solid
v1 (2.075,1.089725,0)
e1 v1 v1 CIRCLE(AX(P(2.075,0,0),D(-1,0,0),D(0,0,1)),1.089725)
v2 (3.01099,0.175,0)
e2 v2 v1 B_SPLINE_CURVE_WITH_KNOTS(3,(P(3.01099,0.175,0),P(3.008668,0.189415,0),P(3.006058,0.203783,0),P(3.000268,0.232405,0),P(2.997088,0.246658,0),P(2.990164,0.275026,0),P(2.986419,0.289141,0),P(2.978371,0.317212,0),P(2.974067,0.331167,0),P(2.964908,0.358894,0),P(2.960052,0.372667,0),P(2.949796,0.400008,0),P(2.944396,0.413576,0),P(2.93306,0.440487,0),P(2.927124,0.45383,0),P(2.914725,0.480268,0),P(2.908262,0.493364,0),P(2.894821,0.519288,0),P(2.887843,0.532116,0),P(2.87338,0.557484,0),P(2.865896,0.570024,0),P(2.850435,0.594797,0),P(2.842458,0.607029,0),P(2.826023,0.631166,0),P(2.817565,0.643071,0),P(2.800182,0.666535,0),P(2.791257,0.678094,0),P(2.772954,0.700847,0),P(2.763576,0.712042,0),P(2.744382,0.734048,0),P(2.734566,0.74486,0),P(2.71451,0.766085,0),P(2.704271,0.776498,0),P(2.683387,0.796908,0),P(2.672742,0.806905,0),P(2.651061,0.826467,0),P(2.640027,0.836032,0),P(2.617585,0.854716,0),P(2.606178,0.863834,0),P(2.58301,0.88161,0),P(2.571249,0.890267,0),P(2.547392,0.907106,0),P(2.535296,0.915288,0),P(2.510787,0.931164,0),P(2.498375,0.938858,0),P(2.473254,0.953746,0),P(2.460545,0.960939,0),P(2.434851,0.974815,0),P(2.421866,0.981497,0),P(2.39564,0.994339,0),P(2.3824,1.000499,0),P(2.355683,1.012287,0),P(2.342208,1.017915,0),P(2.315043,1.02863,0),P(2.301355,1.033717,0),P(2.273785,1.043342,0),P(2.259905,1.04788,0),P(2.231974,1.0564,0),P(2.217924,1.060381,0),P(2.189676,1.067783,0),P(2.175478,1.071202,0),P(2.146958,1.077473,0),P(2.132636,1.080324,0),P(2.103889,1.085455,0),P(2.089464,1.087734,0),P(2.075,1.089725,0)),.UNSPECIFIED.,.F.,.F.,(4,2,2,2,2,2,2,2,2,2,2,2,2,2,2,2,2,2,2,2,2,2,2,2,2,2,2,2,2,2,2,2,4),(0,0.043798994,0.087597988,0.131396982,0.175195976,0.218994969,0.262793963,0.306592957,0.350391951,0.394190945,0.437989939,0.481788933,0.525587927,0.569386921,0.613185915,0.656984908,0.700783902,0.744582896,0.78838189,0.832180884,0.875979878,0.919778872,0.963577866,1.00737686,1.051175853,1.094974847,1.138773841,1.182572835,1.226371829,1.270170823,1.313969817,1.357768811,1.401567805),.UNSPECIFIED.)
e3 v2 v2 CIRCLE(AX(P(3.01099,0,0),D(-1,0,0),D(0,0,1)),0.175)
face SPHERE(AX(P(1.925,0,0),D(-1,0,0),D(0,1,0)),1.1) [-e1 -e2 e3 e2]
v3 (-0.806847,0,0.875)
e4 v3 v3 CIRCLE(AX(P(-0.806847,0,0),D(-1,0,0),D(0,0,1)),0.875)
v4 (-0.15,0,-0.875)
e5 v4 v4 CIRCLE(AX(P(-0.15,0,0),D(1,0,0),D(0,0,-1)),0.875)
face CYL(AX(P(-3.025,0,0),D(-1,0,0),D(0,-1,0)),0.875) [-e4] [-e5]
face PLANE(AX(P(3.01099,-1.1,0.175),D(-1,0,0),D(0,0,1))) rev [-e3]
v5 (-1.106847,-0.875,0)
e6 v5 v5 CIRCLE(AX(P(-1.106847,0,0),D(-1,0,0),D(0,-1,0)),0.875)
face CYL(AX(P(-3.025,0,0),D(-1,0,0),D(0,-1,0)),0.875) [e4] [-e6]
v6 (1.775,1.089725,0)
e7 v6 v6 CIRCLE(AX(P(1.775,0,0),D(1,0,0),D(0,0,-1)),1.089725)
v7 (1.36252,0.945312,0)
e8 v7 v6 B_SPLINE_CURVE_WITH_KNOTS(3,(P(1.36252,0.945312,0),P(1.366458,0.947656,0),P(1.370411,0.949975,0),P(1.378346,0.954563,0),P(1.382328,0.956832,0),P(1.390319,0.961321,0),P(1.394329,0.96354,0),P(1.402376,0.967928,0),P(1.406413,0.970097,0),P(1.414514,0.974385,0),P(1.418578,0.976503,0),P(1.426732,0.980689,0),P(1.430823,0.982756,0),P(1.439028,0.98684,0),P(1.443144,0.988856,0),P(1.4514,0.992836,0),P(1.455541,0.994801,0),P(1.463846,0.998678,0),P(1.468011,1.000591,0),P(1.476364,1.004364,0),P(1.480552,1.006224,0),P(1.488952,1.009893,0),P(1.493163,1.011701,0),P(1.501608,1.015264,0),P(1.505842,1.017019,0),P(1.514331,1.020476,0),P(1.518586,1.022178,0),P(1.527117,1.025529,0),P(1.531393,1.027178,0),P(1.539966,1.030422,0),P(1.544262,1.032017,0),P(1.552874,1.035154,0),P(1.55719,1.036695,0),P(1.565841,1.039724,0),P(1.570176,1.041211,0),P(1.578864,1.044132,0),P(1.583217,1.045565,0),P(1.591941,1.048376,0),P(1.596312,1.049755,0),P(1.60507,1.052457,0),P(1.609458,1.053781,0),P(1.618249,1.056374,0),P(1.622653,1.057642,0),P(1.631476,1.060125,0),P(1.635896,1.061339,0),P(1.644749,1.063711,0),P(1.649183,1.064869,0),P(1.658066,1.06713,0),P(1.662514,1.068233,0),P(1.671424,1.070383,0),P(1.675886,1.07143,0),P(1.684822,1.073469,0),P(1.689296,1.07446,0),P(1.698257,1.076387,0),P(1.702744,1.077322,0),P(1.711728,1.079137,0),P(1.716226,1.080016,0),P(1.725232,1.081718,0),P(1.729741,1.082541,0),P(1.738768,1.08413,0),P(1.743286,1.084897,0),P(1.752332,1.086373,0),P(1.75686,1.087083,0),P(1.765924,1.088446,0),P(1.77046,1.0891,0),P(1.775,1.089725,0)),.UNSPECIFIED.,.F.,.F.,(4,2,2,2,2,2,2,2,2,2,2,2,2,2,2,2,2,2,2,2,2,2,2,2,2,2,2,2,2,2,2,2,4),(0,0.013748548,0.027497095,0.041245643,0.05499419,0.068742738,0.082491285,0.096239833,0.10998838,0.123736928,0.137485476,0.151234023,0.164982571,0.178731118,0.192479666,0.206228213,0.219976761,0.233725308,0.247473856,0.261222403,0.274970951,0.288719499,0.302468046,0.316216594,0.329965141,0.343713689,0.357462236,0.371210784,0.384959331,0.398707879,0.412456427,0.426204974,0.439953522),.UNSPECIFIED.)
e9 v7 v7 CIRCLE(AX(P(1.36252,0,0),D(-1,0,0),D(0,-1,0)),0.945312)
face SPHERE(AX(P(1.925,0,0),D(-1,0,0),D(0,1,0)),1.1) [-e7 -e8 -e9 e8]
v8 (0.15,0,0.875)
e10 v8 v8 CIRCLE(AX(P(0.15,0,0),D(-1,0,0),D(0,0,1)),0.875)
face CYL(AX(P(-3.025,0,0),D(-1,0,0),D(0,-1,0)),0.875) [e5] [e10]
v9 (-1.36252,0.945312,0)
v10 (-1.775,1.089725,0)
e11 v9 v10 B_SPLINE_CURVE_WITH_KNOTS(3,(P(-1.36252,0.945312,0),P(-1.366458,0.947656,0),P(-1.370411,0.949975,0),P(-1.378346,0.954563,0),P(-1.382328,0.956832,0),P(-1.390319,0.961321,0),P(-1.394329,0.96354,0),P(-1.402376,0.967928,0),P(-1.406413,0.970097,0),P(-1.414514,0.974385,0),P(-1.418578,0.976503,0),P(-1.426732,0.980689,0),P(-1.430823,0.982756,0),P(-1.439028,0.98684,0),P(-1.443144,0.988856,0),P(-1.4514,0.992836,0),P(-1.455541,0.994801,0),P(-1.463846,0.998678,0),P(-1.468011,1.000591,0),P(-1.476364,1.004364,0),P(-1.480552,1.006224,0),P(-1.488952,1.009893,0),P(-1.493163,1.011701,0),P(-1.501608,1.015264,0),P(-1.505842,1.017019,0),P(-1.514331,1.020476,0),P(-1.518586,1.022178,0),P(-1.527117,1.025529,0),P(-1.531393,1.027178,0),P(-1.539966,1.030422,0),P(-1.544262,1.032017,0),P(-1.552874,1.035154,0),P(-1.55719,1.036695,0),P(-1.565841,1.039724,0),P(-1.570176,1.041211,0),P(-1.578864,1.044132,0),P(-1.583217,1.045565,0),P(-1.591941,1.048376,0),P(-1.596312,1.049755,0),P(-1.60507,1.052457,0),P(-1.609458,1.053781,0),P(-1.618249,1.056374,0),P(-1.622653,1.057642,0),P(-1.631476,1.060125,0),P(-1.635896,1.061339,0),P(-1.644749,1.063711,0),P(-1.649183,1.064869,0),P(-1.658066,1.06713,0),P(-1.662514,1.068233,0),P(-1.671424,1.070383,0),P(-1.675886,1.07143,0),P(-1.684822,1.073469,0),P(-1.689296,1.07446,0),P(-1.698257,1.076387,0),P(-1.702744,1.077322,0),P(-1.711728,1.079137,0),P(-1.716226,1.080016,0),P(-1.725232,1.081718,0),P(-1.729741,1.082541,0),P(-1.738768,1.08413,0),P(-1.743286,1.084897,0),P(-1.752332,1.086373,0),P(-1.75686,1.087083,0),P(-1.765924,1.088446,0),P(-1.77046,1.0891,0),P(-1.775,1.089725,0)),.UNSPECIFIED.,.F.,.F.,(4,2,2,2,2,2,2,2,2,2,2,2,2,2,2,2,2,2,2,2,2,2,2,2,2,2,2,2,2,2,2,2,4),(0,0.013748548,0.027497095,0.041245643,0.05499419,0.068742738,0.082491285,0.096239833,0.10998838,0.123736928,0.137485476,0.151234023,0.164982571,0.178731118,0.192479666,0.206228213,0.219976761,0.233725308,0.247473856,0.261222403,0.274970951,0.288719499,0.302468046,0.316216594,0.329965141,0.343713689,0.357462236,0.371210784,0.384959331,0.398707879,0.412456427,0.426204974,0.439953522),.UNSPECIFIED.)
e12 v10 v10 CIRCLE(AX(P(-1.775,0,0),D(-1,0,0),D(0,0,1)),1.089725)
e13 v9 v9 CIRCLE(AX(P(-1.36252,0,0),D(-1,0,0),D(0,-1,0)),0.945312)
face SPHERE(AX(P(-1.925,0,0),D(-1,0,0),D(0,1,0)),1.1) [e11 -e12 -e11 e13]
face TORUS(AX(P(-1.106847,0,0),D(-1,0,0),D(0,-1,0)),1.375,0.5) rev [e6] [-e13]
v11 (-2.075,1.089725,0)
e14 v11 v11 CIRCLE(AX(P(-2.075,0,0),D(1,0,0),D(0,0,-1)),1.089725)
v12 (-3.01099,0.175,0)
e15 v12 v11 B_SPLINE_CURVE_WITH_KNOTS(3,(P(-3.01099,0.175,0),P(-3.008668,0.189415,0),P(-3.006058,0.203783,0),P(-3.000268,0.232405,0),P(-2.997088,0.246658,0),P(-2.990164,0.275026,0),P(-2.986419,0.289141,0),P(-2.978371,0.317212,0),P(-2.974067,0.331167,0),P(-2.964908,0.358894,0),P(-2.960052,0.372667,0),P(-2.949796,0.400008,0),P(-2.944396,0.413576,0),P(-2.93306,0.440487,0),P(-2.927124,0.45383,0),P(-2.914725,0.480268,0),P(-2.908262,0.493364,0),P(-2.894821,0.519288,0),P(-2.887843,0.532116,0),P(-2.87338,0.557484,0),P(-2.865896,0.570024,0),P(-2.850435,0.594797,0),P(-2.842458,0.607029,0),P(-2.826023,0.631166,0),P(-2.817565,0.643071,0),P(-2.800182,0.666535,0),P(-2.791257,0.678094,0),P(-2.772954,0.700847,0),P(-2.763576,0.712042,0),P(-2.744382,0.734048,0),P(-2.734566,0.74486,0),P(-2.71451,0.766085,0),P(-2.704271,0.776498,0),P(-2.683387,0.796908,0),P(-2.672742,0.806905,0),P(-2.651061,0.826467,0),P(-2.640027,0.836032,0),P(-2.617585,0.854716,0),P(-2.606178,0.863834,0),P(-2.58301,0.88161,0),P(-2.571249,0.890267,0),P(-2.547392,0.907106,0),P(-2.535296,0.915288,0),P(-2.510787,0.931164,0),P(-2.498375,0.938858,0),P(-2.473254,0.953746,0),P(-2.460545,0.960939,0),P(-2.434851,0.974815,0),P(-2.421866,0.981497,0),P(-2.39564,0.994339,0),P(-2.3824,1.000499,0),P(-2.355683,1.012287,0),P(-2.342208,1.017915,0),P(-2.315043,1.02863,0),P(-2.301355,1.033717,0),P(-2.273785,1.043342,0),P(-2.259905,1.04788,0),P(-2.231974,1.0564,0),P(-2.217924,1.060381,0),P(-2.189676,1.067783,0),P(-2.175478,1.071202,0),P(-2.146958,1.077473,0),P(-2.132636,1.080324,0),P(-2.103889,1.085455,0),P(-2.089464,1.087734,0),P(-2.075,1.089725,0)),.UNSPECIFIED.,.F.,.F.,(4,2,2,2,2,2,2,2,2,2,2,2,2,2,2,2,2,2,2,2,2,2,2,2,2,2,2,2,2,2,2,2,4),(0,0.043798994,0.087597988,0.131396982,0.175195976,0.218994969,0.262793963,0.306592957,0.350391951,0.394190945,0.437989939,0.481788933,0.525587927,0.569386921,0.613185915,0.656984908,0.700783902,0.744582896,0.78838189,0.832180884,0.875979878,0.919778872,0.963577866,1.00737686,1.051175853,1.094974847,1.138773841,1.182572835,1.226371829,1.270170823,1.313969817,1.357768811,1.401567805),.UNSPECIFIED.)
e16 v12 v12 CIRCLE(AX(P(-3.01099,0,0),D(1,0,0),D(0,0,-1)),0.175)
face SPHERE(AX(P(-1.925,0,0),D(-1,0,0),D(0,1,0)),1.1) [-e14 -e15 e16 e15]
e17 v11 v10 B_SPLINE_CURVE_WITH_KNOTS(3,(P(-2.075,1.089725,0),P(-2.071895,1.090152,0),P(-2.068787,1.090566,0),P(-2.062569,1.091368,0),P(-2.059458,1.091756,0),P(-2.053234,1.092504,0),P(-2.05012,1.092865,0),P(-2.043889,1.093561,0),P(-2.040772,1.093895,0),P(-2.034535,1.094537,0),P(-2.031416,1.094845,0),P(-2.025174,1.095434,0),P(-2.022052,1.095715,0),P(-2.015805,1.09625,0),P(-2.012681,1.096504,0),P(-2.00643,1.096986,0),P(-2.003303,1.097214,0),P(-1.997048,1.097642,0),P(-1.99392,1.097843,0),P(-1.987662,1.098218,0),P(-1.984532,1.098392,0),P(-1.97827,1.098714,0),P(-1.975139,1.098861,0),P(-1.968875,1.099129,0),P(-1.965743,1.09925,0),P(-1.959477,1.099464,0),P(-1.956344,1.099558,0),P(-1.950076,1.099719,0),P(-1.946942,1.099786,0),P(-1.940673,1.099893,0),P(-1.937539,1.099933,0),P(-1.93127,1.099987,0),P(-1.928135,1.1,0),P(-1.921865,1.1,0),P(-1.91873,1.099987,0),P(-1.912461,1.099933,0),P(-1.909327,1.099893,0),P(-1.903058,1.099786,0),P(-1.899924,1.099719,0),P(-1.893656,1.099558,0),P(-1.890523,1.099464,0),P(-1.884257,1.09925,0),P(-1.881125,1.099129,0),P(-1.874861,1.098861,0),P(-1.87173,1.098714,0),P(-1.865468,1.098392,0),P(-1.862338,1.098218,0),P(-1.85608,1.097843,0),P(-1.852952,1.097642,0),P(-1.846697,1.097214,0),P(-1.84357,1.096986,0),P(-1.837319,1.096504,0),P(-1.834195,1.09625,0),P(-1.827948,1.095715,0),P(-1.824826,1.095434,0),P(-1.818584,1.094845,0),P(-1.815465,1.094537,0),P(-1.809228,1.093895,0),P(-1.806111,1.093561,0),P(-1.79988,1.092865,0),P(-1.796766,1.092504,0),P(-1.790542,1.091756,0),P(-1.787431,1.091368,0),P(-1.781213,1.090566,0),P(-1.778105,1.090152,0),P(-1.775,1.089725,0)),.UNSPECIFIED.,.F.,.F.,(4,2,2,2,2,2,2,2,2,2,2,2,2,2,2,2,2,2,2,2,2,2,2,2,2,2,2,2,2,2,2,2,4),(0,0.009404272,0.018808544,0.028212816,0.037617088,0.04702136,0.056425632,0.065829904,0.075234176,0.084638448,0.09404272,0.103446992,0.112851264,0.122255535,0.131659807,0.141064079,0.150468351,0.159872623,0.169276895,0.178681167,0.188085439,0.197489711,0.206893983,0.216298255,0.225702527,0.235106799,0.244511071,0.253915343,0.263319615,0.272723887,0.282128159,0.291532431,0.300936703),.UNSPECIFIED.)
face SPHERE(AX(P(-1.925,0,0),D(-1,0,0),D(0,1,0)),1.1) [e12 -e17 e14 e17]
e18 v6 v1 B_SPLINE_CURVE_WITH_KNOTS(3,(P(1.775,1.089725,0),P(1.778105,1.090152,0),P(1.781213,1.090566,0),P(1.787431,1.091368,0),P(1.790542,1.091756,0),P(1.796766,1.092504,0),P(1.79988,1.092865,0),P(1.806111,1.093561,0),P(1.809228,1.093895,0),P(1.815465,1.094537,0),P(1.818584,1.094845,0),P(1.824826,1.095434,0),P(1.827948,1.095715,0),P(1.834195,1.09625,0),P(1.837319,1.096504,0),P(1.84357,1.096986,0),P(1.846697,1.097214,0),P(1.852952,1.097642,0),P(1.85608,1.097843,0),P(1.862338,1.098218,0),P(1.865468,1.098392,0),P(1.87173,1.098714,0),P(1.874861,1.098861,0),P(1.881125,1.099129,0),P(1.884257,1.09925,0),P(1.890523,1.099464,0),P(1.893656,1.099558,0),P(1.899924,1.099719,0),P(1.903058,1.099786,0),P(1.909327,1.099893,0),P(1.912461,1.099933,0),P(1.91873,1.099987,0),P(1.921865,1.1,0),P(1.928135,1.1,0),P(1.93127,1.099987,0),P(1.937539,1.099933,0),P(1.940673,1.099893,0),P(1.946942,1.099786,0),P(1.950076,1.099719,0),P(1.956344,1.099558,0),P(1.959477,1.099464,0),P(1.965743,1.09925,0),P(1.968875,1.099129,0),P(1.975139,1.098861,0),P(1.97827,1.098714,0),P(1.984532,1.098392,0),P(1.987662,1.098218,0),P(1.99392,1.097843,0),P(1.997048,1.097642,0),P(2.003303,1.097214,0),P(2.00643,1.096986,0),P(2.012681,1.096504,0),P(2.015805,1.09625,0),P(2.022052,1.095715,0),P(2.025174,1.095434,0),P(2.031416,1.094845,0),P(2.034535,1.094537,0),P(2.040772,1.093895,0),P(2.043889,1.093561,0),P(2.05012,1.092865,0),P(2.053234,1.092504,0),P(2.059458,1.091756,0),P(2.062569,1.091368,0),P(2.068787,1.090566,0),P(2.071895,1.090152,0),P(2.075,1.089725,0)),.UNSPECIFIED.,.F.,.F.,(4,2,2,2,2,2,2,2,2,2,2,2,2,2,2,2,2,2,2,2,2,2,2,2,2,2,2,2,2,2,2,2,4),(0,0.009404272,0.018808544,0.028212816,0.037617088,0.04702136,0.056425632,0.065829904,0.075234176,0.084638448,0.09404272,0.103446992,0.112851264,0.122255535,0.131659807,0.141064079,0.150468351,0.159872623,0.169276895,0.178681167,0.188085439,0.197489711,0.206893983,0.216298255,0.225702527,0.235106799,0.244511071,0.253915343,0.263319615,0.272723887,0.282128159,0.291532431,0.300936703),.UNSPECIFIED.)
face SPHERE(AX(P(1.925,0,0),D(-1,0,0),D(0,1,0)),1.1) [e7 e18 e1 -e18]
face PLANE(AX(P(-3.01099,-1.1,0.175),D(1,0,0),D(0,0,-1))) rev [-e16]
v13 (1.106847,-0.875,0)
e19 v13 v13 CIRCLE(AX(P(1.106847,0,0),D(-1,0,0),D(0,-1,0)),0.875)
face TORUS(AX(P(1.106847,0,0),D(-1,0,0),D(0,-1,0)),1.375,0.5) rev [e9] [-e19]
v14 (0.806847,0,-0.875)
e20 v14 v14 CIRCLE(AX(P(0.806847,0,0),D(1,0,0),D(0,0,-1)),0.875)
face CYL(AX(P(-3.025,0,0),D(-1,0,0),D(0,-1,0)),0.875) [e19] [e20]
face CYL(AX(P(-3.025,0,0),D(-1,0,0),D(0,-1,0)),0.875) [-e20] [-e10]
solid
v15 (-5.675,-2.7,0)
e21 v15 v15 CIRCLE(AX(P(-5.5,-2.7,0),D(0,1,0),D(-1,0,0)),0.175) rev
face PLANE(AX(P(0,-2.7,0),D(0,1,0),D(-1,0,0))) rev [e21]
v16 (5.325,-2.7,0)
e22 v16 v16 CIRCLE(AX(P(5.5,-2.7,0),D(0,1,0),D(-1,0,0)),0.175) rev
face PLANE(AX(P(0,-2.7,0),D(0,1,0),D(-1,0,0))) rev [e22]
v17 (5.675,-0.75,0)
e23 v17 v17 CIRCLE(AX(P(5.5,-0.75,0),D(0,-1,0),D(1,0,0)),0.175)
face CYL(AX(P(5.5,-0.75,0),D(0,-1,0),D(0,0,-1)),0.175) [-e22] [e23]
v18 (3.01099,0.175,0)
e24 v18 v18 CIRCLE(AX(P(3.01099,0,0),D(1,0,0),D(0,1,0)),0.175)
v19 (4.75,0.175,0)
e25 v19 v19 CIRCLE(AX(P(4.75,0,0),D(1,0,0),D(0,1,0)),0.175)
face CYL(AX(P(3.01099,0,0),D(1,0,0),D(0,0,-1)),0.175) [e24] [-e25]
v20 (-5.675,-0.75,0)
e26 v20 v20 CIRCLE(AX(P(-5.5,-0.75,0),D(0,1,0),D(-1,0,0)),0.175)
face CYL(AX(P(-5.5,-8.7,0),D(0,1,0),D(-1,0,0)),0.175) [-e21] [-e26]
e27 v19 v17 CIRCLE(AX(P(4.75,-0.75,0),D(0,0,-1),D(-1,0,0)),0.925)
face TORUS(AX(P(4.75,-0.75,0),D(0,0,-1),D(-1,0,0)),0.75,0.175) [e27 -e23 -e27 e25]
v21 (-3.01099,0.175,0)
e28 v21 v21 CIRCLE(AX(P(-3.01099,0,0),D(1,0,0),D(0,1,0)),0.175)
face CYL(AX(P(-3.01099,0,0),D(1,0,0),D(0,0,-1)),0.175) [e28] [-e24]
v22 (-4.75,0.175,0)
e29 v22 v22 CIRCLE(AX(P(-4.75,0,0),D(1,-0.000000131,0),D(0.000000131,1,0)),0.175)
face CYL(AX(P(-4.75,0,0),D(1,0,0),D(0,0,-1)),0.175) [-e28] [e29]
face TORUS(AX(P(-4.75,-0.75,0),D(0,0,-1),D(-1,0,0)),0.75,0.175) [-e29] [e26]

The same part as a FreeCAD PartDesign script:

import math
import FreeCAD as App
import Part
import Sketcher
from FreeCAD import Vector
Q = App.Units.Quantity


def add_polygon(sketch, points):
    """Adds a closed chain of lines whose ends are joined by coincident constraints."""
    first, n = sketch.GeometryCount, len(points)
    for a, b in zip(points, points[1:] + points[:1]):
        sketch.addGeometry(Part.LineSegment(App.Vector(*a, 0), App.Vector(*b, 0)), False)
    for i in range(n):
        sketch.addConstraint(Sketcher.Constraint("Coincident", first + i, 2, first + (i + 1) % n, 1))

doc = App.newDocument("Part")
body = doc.addObject("PartDesign::Body", "Body")

# Sketch on XY plane
sketch1 = body.newObject("Sketcher::SketchObject", "Sketch")
sketch1.AttachmentSupport = (doc.getObject("XY_Plane"), [""])
sketch1.MapMode = "FlatFace"
sketch1.addGeometry([
    Part.LineSegment(Vector(1.106847, 0.875, 0), Vector(-1.106847, 0.875, 0)),  # 0
    Part.ArcOfCircle(Part.Circle(Vector(-1.106847, 1.375, 0), Vector(0, 0, 1), 0.5), math.radians(-120.753519), math.radians(-90)),  # 1
    Part.ArcOfCircle(Part.Circle(Vector(-1.925, 0, 0), Vector(0, 0, 1), 1.1), math.radians(59.24648), math.radians(180)),  # 2
    Part.LineSegment(Vector(-3.025, 0, 0), Vector(3.025, 0, 0)),  # 3
    Part.ArcOfCircle(Part.Circle(Vector(1.925, 0, 0), Vector(0, 0, 1), 1.1), math.radians(0), math.radians(120.75352)),  # 4
    Part.ArcOfCircle(Part.Circle(Vector(1.106847, 1.375, 0), Vector(0, 0, 1), 0.5), math.radians(-90), math.radians(-59.246481)),  # 5
], False)
sketch1.addConstraint([
    Sketcher.Constraint("Tangent", 0, 2, 1, 2),
    Sketcher.Constraint("Tangent", 1, 1, 2, 1),
    Sketcher.Constraint("Coincident", 2, 2, 3, 1),
    Sketcher.Constraint("Coincident", 3, 2, 4, 1),
    Sketcher.Constraint("Tangent", 4, 2, 5, 2),
    Sketcher.Constraint("Tangent", 5, 1, 0, 1),
    Sketcher.Constraint("Horizontal", 0),
    Sketcher.Constraint("Horizontal", 3),
    Sketcher.Constraint("Equal", 2, 4),
    Sketcher.Constraint("Equal", 1, 5),
    Sketcher.Constraint("Symmetric", 2, 3, 4, 3, -1, 1),
    Sketcher.Constraint("PointOnObject", 2, 3, -1),
    Sketcher.Constraint("PointOnObject", 2, 2, -1),
    Sketcher.Constraint("Radius", 1, Q("0.5 mm")),
    Sketcher.Constraint("Radius", 2, Q("1.1 mm")),
    Sketcher.Constraint("DistanceX", 3, 1, 3, 2, Q("6.05 mm")),
    Sketcher.Constraint("DistanceY", -1, 1, 1, 3, Q("1.375 mm")),
])
revolution = body.newObject("PartDesign::Revolution", "Revolution")
revolution.Profile = sketch1
revolution.ReferenceAxis = (sketch1, ["H_Axis"])
revolution.Angle = 360

# Sketch on XZ plane
sketch2 = body.newObject("Sketcher::SketchObject", "Sketch001")
sketch2.AttachmentSupport = (doc.getObject("XZ_Plane"), [""])
sketch2.MapMode = "FlatFace"
add_polygon(sketch2, [(-3.03901, -0.175), (-3.03901, 0.175), (-3.01099, 0.175), (-3.01099, -0.175)])  # lines 0-3
add_polygon(sketch2, [(3.01099, -0.175), (3.01099, 0.175), (3.03901, 0.175), (3.03901, -0.175)])  # lines 4-7
sketch2.addConstraint([
    Sketcher.Constraint("Vertical", 0),
    Sketcher.Constraint("Horizontal", 1),
    Sketcher.Constraint("Vertical", 2),
    Sketcher.Constraint("Horizontal", 3),
    Sketcher.Constraint("Vertical", 4),
    Sketcher.Constraint("Horizontal", 5),
    Sketcher.Constraint("Vertical", 6),
    Sketcher.Constraint("Horizontal", 7),
    Sketcher.Constraint("Symmetric", 2, 2, 4, 2, -1, 1),
    Sketcher.Constraint("Symmetric", 0, 2, 6, 2, -1, 1),
    Sketcher.Constraint("Horizontal", 1, 2, 4, 2),
    Sketcher.Constraint("DistanceY", 0, 1, 0, 2, Q("0.35 mm")),
    Sketcher.Constraint("DistanceX", 0, 2, 4, 2, Q("6.05 mm")),
    Sketcher.Constraint("DistanceX", 1, 1, 1, 2, Q("0.028019 mm")),
])
pocket1 = body.newObject("PartDesign::Pocket", "Pocket")
pocket1.Profile = sketch2
pocket1.Type = "ThroughAll"
pocket1.Midplane = True
body2 = doc.addObject("PartDesign::Body", "Body001")

# Sketch on XZ plane
sketch3 = body2.newObject("Sketcher::SketchObject", "Sketch002")
sketch3.AttachmentSupport = (doc.getObject("XZ_Plane001"), [""])
sketch3.MapMode = "FlatFace"
sketch3.AttachmentOffset = App.Placement(Vector(0, 0, 8.7), App.Rotation())
sketch3.addGeometry(Part.Circle(Vector(-5.5, 0, 0), Vector(0, 0, 1), 0.175), False)
sketch3.addConstraint([
    Sketcher.Constraint("PointOnObject", 0, 3, -1),
    Sketcher.Constraint("Diameter", 0, Q("0.35 mm")),
    Sketcher.Constraint("DistanceX", 0, 3, -1, 1, Q("5.5 mm")),
])

# Sketch on XY plane
sketch4 = body2.newObject("Sketcher::SketchObject", "Sketch003")
sketch4.AttachmentSupport = (doc.getObject("XY_Plane001"), [""])
sketch4.MapMode = "FlatFace"
sketch4.addGeometry([
    Part.LineSegment(Vector(5.5, -8.7, 0), Vector(5.5, -0.75, 0)),  # 0
    Part.ArcOfCircle(Part.Circle(Vector(4.75, -0.75, 0), Vector(0, 0, 1), 0.75), math.radians(0), math.radians(90)),  # 1
    Part.LineSegment(Vector(4.75, 0, 0), Vector(-4.75, 0, 0)),  # 2
    Part.ArcOfCircle(Part.Circle(Vector(-4.75, -0.75, 0), Vector(0, 0, 1), 0.75), math.radians(89.999993), math.radians(180)),  # 3
    Part.LineSegment(Vector(-5.5, -0.75, 0), Vector(-5.5, -8.7, 0)),  # 4
], False)
sketch4.addConstraint([
    Sketcher.Constraint("Tangent", 0, 2, 1, 1),
    Sketcher.Constraint("Tangent", 1, 2, 2, 1),
    Sketcher.Constraint("Tangent", 2, 2, 3, 1),
    Sketcher.Constraint("Tangent", 3, 2, 4, 1),
    Sketcher.Constraint("Vertical", 0),
    Sketcher.Constraint("Horizontal", 2),
    Sketcher.Constraint("Vertical", 4),
    Sketcher.Constraint("Equal", 1, 3),
    Sketcher.Constraint("Symmetric", 1, 2, 2, 2, -1, 1),
    Sketcher.Constraint("Horizontal", 0, 1, 4, 2),
    Sketcher.Constraint("Radius", 1, Q("0.75 mm")),
    Sketcher.Constraint("DistanceX", 2, 2, 2, 1, Q("9.5 mm")),
    Sketcher.Constraint("DistanceY", 0, 1, 0, 2, Q("7.95 mm")),
])
doc.recompute()

additivepipe = body2.newObject("PartDesign::AdditivePipe", "AdditivePipe")
additivepipe.Profile = sketch3
additivepipe.Spine = (sketch4, ["Edge1", "Edge2", "Edge3", "Edge4", "Edge5"])

# Sketch on XZ plane
sketch5 = body2.newObject("Sketcher::SketchObject", "Sketch004")
sketch5.AttachmentSupport = (doc.getObject("XZ_Plane001"), [""])
sketch5.MapMode = "FlatFace"
sketch5.AttachmentOffset = App.Placement(Vector(0, 0, 8.7), App.Rotation())
add_polygon(sketch5, [(-10, 10), (-10, -10), (10, -10), (10, 10)])  # lines 0-3
sketch5.addConstraint([
    Sketcher.Constraint("Vertical", 0),
    Sketcher.Constraint("Horizontal", 1),
    Sketcher.Constraint("Vertical", 2),
    Sketcher.Constraint("Horizontal", 3),
    Sketcher.Constraint("Symmetric", 0, 2, 2, 2, -1, 1),
    Sketcher.Constraint("Equal", 3, 0),
    Sketcher.Constraint("DistanceX", 1, 1, 1, 2, Q("20 mm")),
])
pocket2 = body2.newObject("PartDesign::Pocket", "Pocket001")
pocket2.Profile = sketch5
pocket2.Length = 6

doc.recompute()
